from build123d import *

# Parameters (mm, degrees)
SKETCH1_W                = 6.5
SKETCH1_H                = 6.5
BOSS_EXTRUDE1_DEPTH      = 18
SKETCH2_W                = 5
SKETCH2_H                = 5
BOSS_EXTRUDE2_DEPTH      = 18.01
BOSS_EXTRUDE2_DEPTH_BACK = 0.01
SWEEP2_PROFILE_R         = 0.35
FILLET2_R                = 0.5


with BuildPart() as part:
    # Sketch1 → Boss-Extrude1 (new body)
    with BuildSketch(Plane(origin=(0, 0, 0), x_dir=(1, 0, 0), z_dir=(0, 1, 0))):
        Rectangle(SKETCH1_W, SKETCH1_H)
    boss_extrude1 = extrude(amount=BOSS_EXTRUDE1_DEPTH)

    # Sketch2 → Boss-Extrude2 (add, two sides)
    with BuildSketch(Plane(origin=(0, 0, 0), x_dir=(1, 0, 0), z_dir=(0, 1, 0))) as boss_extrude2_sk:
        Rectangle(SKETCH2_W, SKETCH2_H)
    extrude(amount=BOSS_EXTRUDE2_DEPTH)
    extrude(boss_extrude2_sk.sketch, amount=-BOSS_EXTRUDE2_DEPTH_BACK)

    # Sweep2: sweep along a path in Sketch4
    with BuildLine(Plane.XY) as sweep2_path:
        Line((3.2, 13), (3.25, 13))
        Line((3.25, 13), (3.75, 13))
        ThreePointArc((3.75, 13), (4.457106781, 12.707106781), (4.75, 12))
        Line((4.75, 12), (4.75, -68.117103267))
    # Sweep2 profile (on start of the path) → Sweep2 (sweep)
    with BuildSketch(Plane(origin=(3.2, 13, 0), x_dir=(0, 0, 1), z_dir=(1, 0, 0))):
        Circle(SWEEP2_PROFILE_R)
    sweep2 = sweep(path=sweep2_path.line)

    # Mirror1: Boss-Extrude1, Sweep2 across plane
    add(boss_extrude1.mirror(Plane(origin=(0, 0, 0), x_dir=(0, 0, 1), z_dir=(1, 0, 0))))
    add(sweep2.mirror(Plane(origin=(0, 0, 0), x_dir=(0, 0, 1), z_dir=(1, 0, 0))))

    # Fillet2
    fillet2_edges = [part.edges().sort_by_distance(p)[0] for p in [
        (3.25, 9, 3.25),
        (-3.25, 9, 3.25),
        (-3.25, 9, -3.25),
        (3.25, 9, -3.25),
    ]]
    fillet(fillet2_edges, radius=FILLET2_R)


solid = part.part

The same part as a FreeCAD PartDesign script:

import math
import FreeCAD as App
import Part
import Sketcher

V = App.Vector
Q = App.Units.Quantity


def edges_at(feature, points):
    """Names of the edges that pass closest to the given points."""
    edges = feature.Shape.Edges
    near = lambda p: min(range(len(edges)), key=lambda i: edges[i].distToShape(Part.Vertex(*p))[0])
    return sorted({f"Edge{near(p) + 1}" for p in points})


def add_polygon(sketch, points):
    """Adds a closed chain of lines whose ends are joined by coincident constraints."""
    first, n = sketch.GeometryCount, len(points)
    for a, b in zip(points, points[1:] + points[:1]):
        sketch.addGeometry(Part.LineSegment(App.Vector(*a, 0), App.Vector(*b, 0)), False)
    for i in range(n):
        sketch.addConstraint(Sketcher.Constraint("Coincident", first + i, 2, first + (i + 1) % n, 1))

doc = App.newDocument("Part")
body = doc.addObject("PartDesign::Body", "Body")

sketch1 = doc.addObject("Sketcher::SketchObject", "Sketch")
body.addObject(sketch1)
sketch1.AttachmentSupport = (doc.XZ_Plane, [""])
sketch1.MapMode = "FlatFace"
add_polygon(sketch1, [(-3, -3), (-3, 3), (3, 3), (3, -3)])
sketch1.addConstraint(Sketcher.Constraint("Vertical", 0))
sketch1.addConstraint(Sketcher.Constraint("Horizontal", 1))
sketch1.addConstraint(Sketcher.Constraint("Vertical", 2))
sketch1.addConstraint(Sketcher.Constraint("Horizontal", 3))
sketch1.addConstraint(Sketcher.Constraint("Symmetric", 0, 2, 2, 2, -1, 1))
sketch1.addConstraint(Sketcher.Constraint("Equal", 3, 0))
sketch1.addConstraint(Sketcher.Constraint("DistanceX", 1, 1, 1, 2, Q("6.5 mm")))
pad1 = doc.addObject("PartDesign::Pad", "Pad")
body.addObject(pad1)
pad1.Profile = sketch1
pad1.Length = 18
pad1.Reversed = True

sketch2 = doc.addObject("Sketcher::SketchObject", "Sketch001")
body.addObject(sketch2)
sketch2.AttachmentSupport = (doc.XZ_Plane, [""])
sketch2.MapMode = "FlatFace"
add_polygon(sketch2, [(-2, -2), (-2, 2), (2, 2), (2, -2)])
sketch2.addConstraint(Sketcher.Constraint("Vertical", 0))
sketch2.addConstraint(Sketcher.Constraint("Horizontal", 1))
sketch2.addConstraint(Sketcher.Constraint("Vertical", 2))
sketch2.addConstraint(Sketcher.Constraint("Horizontal", 3))
sketch2.addConstraint(Sketcher.Constraint("Symmetric", 0, 2, 2, 2, -1, 1))
sketch2.addConstraint(Sketcher.Constraint("Equal", 3, 0))
sketch2.addConstraint(Sketcher.Constraint("DistanceX", 1, 1, 1, 2, Q("5 mm")))
pad2 = doc.addObject("PartDesign::Pad", "Pad001")
body.addObject(pad2)
pad2.Profile = sketch2
pad2.Type = "TwoLengths"
pad2.Length = 18.01
pad2.Length2 = 0.01
pad2.Reversed = True

sketch3 = doc.addObject("Sketcher::SketchObject", "Sketch002")
body.addObject(sketch3)
sketch3.AttachmentSupport = (doc.YZ_Plane, [""])
sketch3.MapMode = "FlatFace"
sketch3.AttachmentOffset = App.Placement(V(0, 0, 3.2), App.Rotation())
sketch3.addGeometry(Part.Circle(V(13, 0, 0), V(0, 0, 1), 0.35), False)
sketch3.addConstraint(Sketcher.Constraint("PointOnObject", 0, 3, -1))
sketch3.addConstraint(Sketcher.Constraint("Diameter", 0, Q("0.7 mm")))
sketch3.addConstraint(Sketcher.Constraint("DistanceX", -1, 1, 0, 3, Q("13 mm")))

sketch4 = doc.addObject("Sketcher::SketchObject", "Sketch003")
body.addObject(sketch4)
sketch4.AttachmentSupport = (doc.XY_Plane, [""])
sketch4.MapMode = "FlatFace"
sketch4.addGeometry(Part.LineSegment(V(3.2, 13, 0), V(3.8, 13, 0)), False)
sketch4.addGeometry(Part.ArcOfCircle(Part.Circle(V(3.7, 12, 0), V(0, 0, 1), 1), math.radians(0), math.radians(90)), False)
sketch4.addGeometry(Part.LineSegment(V(4.8, 12, 0), V(4.8, -68.1, 0)), False)
sketch4.addConstraint(Sketcher.Constraint("Tangent", 0, 2, 1, 2))
sketch4.addConstraint(Sketcher.Constraint("Tangent", 1, 1, 2, 1))
sketch4.addConstraint(Sketcher.Constraint("Horizontal", 0))
sketch4.addConstraint(Sketcher.Constraint("Vertical", 2))
sketch4.addConstraint(Sketcher.Constraint("Radius", 1, Q("1 mm")))
sketch4.addConstraint(Sketcher.Constraint("DistanceY", -1, 1, 1, 3, Q("12 mm")))
sketch4.addConstraint(Sketcher.Constraint("DistanceX", 0, 1, 0, 2, Q("0.55 mm")))
sketch4.addConstraint(Sketcher.Constraint("DistanceX", -1, 1, 0, 1, Q("3.2 mm")))
sketch4.addConstraint(Sketcher.Constraint("DistanceY", 2, 2, 2, 1, Q("80.117103 mm")))
doc.recompute()

additivepipe = doc.addObject("PartDesign::AdditivePipe", "AdditivePipe")
body.addObject(additivepipe)
additivepipe.Profile = sketch3
additivepipe.Spine = (sketch4, ["Edge1", "Edge2", "Edge3"])
doc.recompute()

mirrored = doc.addObject("PartDesign::Mirrored", "Mirrored")
body.addObject(mirrored)
mirrored.Originals = [pad1, additivepipe]
mirrored.MirrorPlane = (doc.YZ_Plane, [""])
body.Tip = mirrored
doc.recompute()

fillet = doc.addObject("PartDesign::Fillet", "Fillet")
body.addObject(fillet)
fillet.Base = (mirrored, edges_at(mirrored, [
    (3.25, 9, 3.25),
    (-3.25, 9, 3.25),
    (-3.25, 9, -3.25),
    (3.25, 9, -3.25),
]))
fillet.Radius = 0.5

doc.recompute()
